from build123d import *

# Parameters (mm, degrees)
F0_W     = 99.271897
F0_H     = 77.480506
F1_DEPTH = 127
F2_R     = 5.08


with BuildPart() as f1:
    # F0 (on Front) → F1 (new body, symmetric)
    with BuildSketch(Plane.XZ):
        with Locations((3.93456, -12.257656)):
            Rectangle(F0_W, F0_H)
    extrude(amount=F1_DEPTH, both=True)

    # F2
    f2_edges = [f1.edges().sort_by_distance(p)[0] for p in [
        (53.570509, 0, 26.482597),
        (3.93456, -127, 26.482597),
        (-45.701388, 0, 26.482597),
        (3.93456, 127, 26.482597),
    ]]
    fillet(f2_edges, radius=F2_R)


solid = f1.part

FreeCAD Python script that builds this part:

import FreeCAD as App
import Part
import Sketcher

V = App.Vector
Q = App.Units.Quantity


def edges_at(feature, points):
    """Names of the edges that pass closest to the given points."""
    edges = feature.Shape.Edges
    near = lambda p: min(range(len(edges)), key=lambda i: edges[i].distToShape(Part.Vertex(*p))[0])
    return sorted({f"Edge{near(p) + 1}" for p in points})


def add_polygon(sketch, points):
    """Adds a closed chain of lines whose ends are joined by coincident constraints."""
    first, n = sketch.GeometryCount, len(points)
    for a, b in zip(points, points[1:] + points[:1]):
        sketch.addGeometry(Part.LineSegment(App.Vector(*a, 0), App.Vector(*b, 0)), False)
    for i in range(n):
        sketch.addConstraint(Sketcher.Constraint("Coincident", first + i, 2, first + (i + 1) % n, 1))

doc = App.newDocument("Part")
body = doc.addObject("PartDesign::Body", "Body")

# Sketch on XZ plane
sketch1 = body.newObject("Sketcher::SketchObject", "Sketch")
sketch1.AttachmentSupport = (doc.getObject("XZ_Plane"), [""])
sketch1.MapMode = "FlatFace"
add_polygon(sketch1, [(-45.701389, 26.482597), (-45.701389, -50.997909), (53.570509, -50.997909), (53.570509, 26.482597)])  # lines 0-3
sketch1.addConstraint(Sketcher.Constraint("Vertical", 0))
sketch1.addConstraint(Sketcher.Constraint("Horizontal", 1))
sketch1.addConstraint(Sketcher.Constraint("Vertical", 2))
sketch1.addConstraint(Sketcher.Constraint("Horizontal", 3))
sketch1.addConstraint(Sketcher.Constraint("DistanceX", 1, 1, 1, 2, Q("99.271897 mm")))
sketch1.addConstraint(Sketcher.Constraint("DistanceY", 0, 2, 0, 1, Q("77.480506 mm")))
sketch1.addConstraint(Sketcher.Constraint("DistanceX", 0, 2, -1, 1, Q("45.701389 mm")))
sketch1.addConstraint(Sketcher.Constraint("DistanceY", 0, 2, -1, 1, Q("50.997909 mm")))
pad1 = body.newObject("PartDesign::Pad", "Pad")
pad1.Profile = sketch1
pad1.Length = Q("10 in")
pad1.Midplane = True
doc.recompute()

fillet = body.newObject("PartDesign::Fillet", "Fillet")
fillet.Base = (pad1, edges_at(pad1, [
    (53.571, 0, 26.483),
    (3.935, -127, 26.483),
    (-45.701, 0, 26.483),
    (3.935, 127, 26.483),
]))
fillet.Radius = Q("0.2 in")

doc.recompute()
